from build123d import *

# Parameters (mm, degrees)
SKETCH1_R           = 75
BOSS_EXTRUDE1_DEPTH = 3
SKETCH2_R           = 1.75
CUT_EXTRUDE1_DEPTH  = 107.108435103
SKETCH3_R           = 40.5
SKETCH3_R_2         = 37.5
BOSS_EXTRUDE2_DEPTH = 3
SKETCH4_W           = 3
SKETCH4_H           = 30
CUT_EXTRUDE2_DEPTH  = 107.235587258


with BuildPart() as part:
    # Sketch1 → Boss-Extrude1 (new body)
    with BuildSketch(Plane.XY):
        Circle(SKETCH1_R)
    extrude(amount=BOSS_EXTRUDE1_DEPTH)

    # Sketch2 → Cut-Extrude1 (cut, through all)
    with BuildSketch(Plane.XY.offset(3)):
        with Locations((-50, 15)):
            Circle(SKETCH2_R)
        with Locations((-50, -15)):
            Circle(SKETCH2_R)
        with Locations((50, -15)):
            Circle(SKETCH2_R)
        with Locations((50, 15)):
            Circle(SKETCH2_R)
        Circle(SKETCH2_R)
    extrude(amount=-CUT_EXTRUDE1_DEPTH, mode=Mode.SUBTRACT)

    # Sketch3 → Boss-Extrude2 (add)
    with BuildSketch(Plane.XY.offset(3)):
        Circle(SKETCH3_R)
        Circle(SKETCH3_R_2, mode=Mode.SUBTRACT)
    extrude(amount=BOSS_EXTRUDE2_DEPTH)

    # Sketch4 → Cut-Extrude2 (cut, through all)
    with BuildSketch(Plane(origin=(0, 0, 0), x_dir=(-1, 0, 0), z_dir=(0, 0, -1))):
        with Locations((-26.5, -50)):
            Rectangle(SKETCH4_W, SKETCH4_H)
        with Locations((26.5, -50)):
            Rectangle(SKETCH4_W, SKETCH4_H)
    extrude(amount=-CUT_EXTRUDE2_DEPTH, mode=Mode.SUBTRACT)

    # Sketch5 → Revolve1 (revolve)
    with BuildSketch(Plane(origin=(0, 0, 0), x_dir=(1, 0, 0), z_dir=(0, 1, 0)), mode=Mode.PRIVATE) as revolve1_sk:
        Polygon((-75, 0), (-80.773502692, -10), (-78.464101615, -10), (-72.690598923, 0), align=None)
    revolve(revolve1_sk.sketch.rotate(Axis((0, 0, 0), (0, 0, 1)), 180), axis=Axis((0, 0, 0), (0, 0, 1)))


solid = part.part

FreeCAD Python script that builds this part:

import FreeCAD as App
import Part
import Sketcher
from FreeCAD import Vector
Q = App.Units.Quantity

doc = App.newDocument("Part")
params = doc.addObject("Spreadsheet::Sheet", "Params")
for row, (alias, value) in enumerate([
    ("sketch1_diameter", "150 mm"),
    ("pad1_length", "3 mm"),
    ("sketch2_diameter", "3.5 mm"),
    ("sketch3_diameter", "81 mm"),
    ("sketch3_diameter2", "75 mm"),
    ("pad2_length", "3 mm"),
    ("sketch4_width", "3 mm"),
    ("sketch4_height", "30 mm"),
    ("revolution_angle", "360 deg"),
], start=1):
    params.set(f"A{row}", alias)
    params.set(f"B{row}", "=" + value)
    params.setAlias(f"B{row}", alias)

body = doc.addObject("PartDesign::Body", "Body")

# Sketch on XY plane
sketch1 = body.newObject("Sketcher::SketchObject", "Sketch")
sketch1.AttachmentSupport = (doc.getObject("XY_Plane"), [""])
sketch1.MapMode = "FlatFace"
sketch1.addGeometry(Part.Circle(Vector(0, 0, 0), Vector(0, 0, 1), 75), False)
sketch1.addConstraint([
    Sketcher.Constraint("Coincident", 0, 3, -1, 1),
    Sketcher.Constraint("Diameter", 0, 150.0),
])
sketch1.setExpression("Constraints[1]", "Params.sketch1_diameter")
pad1 = body.newObject("PartDesign::Pad", "Pad")
pad1.Profile = sketch1
pad1.setExpression("Length", "Params.pad1_length")

# Sketch on XY plane
sketch2 = body.newObject("Sketcher::SketchObject", "Sketch001")
sketch2.AttachmentSupport = (doc.getObject("XY_Plane"), [""])
sketch2.MapMode = "FlatFace"
sketch2.AttachmentOffset = App.Placement(Vector(0, 0, 3), App.Rotation())
sketch2.addGeometry([
    Part.Circle(Vector(-50, 15, 0), Vector(0, 0, 1), 1.8),  # 0
    Part.Circle(Vector(-50, -15, 0), Vector(0, 0, 1), 1.8),  # 1
    Part.Circle(Vector(50, -15, 0), Vector(0, 0, 1), 1.8),  # 2
    Part.Circle(Vector(50, 15, 0), Vector(0, 0, 1), 1.8),  # 3
    Part.Circle(Vector(0, 0, 0), Vector(0, 0, 1), 1.8),  # 4
], False)
sketch2.addConstraint([
    Sketcher.Constraint("Coincident", 4, 3, -1, 1),
    Sketcher.Constraint("Equal", 0, 1),
    Sketcher.Constraint("Equal", 1, 2),
    Sketcher.Constraint("Equal", 2, 3),
    Sketcher.Constraint("Equal", 3, 4),
    Sketcher.Constraint("Symmetric", 0, 3, 2, 3, -1, 1),
    Sketcher.Constraint("Symmetric", 1, 3, 3, 3, -1, 1),
    Sketcher.Constraint("Symmetric", 1, 3, 2, 3, -2),
    Sketcher.Constraint("Diameter", 0, 3.5),
    Sketcher.Constraint("DistanceX", 0, 3, -1, 1, 50.0),
    Sketcher.Constraint("DistanceY", -1, 1, 0, 3, 15.0),
])
sketch2.setExpression("Constraints[8]", "Params.sketch2_diameter")
pocket1 = body.newObject("PartDesign::Pocket", "Pocket")
pocket1.Profile = sketch2
pocket1.Type = "ThroughAll"

# Sketch on XY plane
sketch3 = body.newObject("Sketcher::SketchObject", "Sketch002")
sketch3.AttachmentSupport = (doc.getObject("XY_Plane"), [""])
sketch3.MapMode = "FlatFace"
sketch3.AttachmentOffset = App.Placement(Vector(0, 0, 3), App.Rotation())
sketch3.addGeometry([
    Part.Circle(Vector(0, 0, 0), Vector(0, 0, 1), 40),
    Part.Circle(Vector(0, 0, 0), Vector(0, 0, 1), 38),
], False)
sketch3.addConstraint([
    Sketcher.Constraint("Coincident", 0, 3, -1, 1),
    Sketcher.Constraint("Coincident", 1, 3, -1, 1),
    Sketcher.Constraint("Diameter", 0, 81.0),
    Sketcher.Constraint("Diameter", 1, 75.0),
])
sketch3.setExpression("Constraints[2]", "Params.sketch3_diameter")
sketch3.setExpression("Constraints[3]", "Params.sketch3_diameter2")
pad2 = body.newObject("PartDesign::Pad", "Pad001")
pad2.Profile = sketch3
pad2.setExpression("Length", "Params.pad2_length")

# Sketch on XY plane
sketch4 = body.newObject("Sketcher::SketchObject", "Sketch003")
sketch4.AttachmentSupport = (doc.getObject("XY_Plane"), [""])
sketch4.MapMode = "FlatFace"
sketch4.addGeometry([
    Part.LineSegment(Vector(28, -35, 0), Vector(28, -65, 0)),  # 0
    Part.LineSegment(Vector(28, -65, 0), Vector(25, -65, 0)),  # 1
    Part.LineSegment(Vector(25, -65, 0), Vector(25, -35, 0)),  # 2
    Part.LineSegment(Vector(25, -35, 0), Vector(28, -35, 0)),  # 3
    Part.LineSegment(Vector(-25, -35, 0), Vector(-25, -65, 0)),  # 4
    Part.LineSegment(Vector(-25, -65, 0), Vector(-28, -65, 0)),  # 5
    Part.LineSegment(Vector(-28, -65, 0), Vector(-28, -35, 0)),  # 6
    Part.LineSegment(Vector(-28, -35, 0), Vector(-25, -35, 0)),  # 7
], False)
sketch4.addConstraint([
    Sketcher.Constraint("Coincident", 0, 2, 1, 1),
    Sketcher.Constraint("Coincident", 1, 2, 2, 1),
    Sketcher.Constraint("Coincident", 2, 2, 3, 1),
    Sketcher.Constraint("Coincident", 3, 2, 0, 1),
    Sketcher.Constraint("Coincident", 4, 2, 5, 1),
    Sketcher.Constraint("Coincident", 5, 2, 6, 1),
    Sketcher.Constraint("Coincident", 6, 2, 7, 1),
    Sketcher.Constraint("Coincident", 7, 2, 4, 1),
    Sketcher.Constraint("Vertical", 0),
    Sketcher.Constraint("Horizontal", 1),
    Sketcher.Constraint("Vertical", 2),
    Sketcher.Constraint("Horizontal", 3),
    Sketcher.Constraint("Vertical", 4),
    Sketcher.Constraint("Horizontal", 5),
    Sketcher.Constraint("Vertical", 6),
    Sketcher.Constraint("Horizontal", 7),
    Sketcher.Constraint("Symmetric", 1, 2, 4, 2, -2),
    Sketcher.Constraint("Symmetric", 3, 2, 6, 2, -2),
    Sketcher.Constraint("DistanceX", 1, 2, 1, 1, 3.0),
    Sketcher.Constraint("DistanceY", 0, 2, 0, 1, 30.0),
    Sketcher.Constraint("DistanceX", -1, 1, 0, 2, 28.0),
    Sketcher.Constraint("DistanceY", 0, 2, -1, 1, 65.0),
])
sketch4.setExpression("Constraints[18]", "Params.sketch4_width")
sketch4.setExpression("Constraints[19]", "Params.sketch4_height")
pocket2 = body.newObject("PartDesign::Pocket", "Pocket001")
pocket2.Profile = sketch4
pocket2.Type = "ThroughAll"
pocket2.Reversed = True

# Sketch on XZ plane
sketch5 = body.newObject("Sketcher::SketchObject", "Sketch004")
sketch5.AttachmentSupport = (doc.getObject("XZ_Plane"), [""])
sketch5.MapMode = "FlatFace"
sketch5.addGeometry([
    Part.LineSegment(Vector(-75, 0, 0), Vector(-80.8, 10, 0)),
    Part.LineSegment(Vector(-80.8, 10, 0), Vector(-78.5, 10, 0)),
    Part.LineSegment(Vector(-78.5, 10, 0), Vector(-72.7, 0, 0)),
    Part.LineSegment(Vector(-72.7, 0, 0), Vector(-75, 0, 0)),
], False)
sketch5.addConstraint([
    Sketcher.Constraint("Coincident", 0, 2, 1, 1),
    Sketcher.Constraint("Coincident", 1, 2, 2, 1),
    Sketcher.Constraint("Coincident", 2, 2, 3, 1),
    Sketcher.Constraint("Coincident", 3, 2, 0, 1),
    Sketcher.Constraint("Horizontal", 1),
    Sketcher.Constraint("Horizontal", 3),
    Sketcher.Constraint("PointOnObject", 2, 2, -1),
    Sketcher.Constraint("Parallel", 0, 2),
    Sketcher.Constraint("Angle", 0, Q("120 deg")),
    Sketcher.Constraint("DistanceY", -1, 1, 0, 2, 10.0),
    Sketcher.Constraint("DistanceX", 3, 2, -1, 1, 75.0),
    Sketcher.Constraint("DistanceX", 1, 1, 1, 2, 2.309401),
])
revolution = body.newObject("PartDesign::Revolution", "Revolution")
revolution.Profile = sketch5
revolution.ReferenceAxis = (sketch5, ["V_Axis"])
revolution.setExpression("Angle", "Params.revolution_angle")

doc.recompute()
